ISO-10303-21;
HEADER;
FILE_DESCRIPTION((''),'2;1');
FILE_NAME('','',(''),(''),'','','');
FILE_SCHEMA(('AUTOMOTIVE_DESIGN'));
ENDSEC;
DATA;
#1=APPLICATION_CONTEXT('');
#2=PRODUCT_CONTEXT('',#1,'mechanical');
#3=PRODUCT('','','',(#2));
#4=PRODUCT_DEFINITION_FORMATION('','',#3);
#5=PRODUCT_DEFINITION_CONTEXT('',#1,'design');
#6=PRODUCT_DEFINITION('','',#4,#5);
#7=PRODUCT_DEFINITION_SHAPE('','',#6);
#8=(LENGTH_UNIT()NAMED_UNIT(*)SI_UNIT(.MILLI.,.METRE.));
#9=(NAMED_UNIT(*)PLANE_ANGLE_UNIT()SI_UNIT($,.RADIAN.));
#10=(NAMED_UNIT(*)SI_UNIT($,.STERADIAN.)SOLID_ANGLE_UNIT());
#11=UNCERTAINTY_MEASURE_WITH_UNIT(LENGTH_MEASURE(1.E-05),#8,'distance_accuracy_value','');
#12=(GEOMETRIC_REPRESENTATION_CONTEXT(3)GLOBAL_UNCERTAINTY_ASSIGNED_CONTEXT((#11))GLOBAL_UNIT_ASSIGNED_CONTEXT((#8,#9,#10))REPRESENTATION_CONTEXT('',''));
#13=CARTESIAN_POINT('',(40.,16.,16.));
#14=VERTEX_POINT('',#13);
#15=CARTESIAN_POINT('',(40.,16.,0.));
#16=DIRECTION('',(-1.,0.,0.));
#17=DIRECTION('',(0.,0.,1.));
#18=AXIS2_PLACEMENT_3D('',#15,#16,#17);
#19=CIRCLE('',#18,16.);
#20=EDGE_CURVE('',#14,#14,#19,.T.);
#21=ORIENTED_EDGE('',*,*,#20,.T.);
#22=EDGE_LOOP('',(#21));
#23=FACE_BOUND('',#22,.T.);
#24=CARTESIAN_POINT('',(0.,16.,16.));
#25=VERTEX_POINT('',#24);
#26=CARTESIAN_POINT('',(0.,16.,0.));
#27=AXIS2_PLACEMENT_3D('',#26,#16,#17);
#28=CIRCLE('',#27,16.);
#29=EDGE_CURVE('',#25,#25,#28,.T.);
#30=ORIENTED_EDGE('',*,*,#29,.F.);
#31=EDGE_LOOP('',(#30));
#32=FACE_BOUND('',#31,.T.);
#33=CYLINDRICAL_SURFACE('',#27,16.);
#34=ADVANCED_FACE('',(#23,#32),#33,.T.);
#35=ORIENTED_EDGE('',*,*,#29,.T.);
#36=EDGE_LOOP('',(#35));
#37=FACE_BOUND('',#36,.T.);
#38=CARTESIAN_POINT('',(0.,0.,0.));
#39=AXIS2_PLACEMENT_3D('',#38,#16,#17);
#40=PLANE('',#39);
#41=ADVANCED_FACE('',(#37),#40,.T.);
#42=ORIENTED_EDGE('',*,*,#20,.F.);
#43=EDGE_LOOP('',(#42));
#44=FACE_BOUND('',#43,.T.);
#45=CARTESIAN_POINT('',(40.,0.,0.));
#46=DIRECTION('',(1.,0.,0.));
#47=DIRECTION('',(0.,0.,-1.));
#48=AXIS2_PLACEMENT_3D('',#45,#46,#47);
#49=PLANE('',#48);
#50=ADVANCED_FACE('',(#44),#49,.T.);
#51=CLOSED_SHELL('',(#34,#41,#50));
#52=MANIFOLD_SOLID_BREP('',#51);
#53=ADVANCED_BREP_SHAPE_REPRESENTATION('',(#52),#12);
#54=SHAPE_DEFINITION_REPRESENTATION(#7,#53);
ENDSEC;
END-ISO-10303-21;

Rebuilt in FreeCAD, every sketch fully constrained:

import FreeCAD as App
import Part
import Sketcher

V = App.Vector

doc = App.newDocument("Part")
params = doc.addObject("Spreadsheet::Sheet", "Params")
for row, (alias, value) in enumerate([
    ("sketch1_width", "40 mm"),
    ("sketch1_height", "16 mm"),
    ("revolution_angle", "360 deg"),
], start=1):
    params.set(f"A{row}", alias)
    params.set(f"B{row}", "=" + value)
    params.setAlias(f"B{row}", alias)

body = doc.addObject("PartDesign::Body", "Body")

sketch1 = body.newObject("Sketcher::SketchObject", "Sketch")
sketch1.AttachmentSupport = (doc.getObject("XY_Plane"), [""])
sketch1.MapMode = "FlatFace"
sketch1.addGeometry(Part.LineSegment(V(0, 16, 0), V(0, 0, 0)), False)
sketch1.addGeometry(Part.LineSegment(V(0, 0, 0), V(40, 0, 0)), False)
sketch1.addGeometry(Part.LineSegment(V(40, 0, 0), V(40, 16, 0)), False)
sketch1.addGeometry(Part.LineSegment(V(40, 16, 0), V(0, 16, 0)), False)
sketch1.addGeometry(Part.LineSegment(V(0, 16, 0), V(40, 16, 0)), True)
sketch1.addConstraint(Sketcher.Constraint("Coincident", 0, 2, 1, 1))
sketch1.addConstraint(Sketcher.Constraint("Coincident", 1, 2, 2, 1))
sketch1.addConstraint(Sketcher.Constraint("Coincident", 2, 2, 3, 1))
sketch1.addConstraint(Sketcher.Constraint("Coincident", 3, 2, 0, 1))
sketch1.addConstraint(Sketcher.Constraint("Vertical", 0))
sketch1.addConstraint(Sketcher.Constraint("Horizontal", 1))
sketch1.addConstraint(Sketcher.Constraint("Vertical", 2))
sketch1.addConstraint(Sketcher.Constraint("Horizontal", 3))
sketch1.addConstraint(Sketcher.Constraint("Horizontal", 4))
sketch1.addConstraint(Sketcher.Constraint("Coincident", 0, 2, -1, 1))
sketch1.addConstraint(Sketcher.Constraint("Coincident", 4, 1, 3, 2))
sketch1.addConstraint(Sketcher.Constraint("Vertical", 1, 2, 4, 2))
sketch1.addConstraint(Sketcher.Constraint("DistanceX", 1, 1, 1, 2, 40.0))
sketch1.addConstraint(Sketcher.Constraint("DistanceY", 0, 2, 0, 1, 16.0))
sketch1.setExpression("Constraints[12]", "Params.sketch1_width")
sketch1.setExpression("Constraints[13]", "Params.sketch1_height")
revolution = body.newObject("PartDesign::Revolution", "Revolution")
revolution.Profile = sketch1
revolution.ReferenceAxis = (sketch1, ["Axis0"])
revolution.setExpression("Angle", "Params.revolution_angle")

doc.recompute()
